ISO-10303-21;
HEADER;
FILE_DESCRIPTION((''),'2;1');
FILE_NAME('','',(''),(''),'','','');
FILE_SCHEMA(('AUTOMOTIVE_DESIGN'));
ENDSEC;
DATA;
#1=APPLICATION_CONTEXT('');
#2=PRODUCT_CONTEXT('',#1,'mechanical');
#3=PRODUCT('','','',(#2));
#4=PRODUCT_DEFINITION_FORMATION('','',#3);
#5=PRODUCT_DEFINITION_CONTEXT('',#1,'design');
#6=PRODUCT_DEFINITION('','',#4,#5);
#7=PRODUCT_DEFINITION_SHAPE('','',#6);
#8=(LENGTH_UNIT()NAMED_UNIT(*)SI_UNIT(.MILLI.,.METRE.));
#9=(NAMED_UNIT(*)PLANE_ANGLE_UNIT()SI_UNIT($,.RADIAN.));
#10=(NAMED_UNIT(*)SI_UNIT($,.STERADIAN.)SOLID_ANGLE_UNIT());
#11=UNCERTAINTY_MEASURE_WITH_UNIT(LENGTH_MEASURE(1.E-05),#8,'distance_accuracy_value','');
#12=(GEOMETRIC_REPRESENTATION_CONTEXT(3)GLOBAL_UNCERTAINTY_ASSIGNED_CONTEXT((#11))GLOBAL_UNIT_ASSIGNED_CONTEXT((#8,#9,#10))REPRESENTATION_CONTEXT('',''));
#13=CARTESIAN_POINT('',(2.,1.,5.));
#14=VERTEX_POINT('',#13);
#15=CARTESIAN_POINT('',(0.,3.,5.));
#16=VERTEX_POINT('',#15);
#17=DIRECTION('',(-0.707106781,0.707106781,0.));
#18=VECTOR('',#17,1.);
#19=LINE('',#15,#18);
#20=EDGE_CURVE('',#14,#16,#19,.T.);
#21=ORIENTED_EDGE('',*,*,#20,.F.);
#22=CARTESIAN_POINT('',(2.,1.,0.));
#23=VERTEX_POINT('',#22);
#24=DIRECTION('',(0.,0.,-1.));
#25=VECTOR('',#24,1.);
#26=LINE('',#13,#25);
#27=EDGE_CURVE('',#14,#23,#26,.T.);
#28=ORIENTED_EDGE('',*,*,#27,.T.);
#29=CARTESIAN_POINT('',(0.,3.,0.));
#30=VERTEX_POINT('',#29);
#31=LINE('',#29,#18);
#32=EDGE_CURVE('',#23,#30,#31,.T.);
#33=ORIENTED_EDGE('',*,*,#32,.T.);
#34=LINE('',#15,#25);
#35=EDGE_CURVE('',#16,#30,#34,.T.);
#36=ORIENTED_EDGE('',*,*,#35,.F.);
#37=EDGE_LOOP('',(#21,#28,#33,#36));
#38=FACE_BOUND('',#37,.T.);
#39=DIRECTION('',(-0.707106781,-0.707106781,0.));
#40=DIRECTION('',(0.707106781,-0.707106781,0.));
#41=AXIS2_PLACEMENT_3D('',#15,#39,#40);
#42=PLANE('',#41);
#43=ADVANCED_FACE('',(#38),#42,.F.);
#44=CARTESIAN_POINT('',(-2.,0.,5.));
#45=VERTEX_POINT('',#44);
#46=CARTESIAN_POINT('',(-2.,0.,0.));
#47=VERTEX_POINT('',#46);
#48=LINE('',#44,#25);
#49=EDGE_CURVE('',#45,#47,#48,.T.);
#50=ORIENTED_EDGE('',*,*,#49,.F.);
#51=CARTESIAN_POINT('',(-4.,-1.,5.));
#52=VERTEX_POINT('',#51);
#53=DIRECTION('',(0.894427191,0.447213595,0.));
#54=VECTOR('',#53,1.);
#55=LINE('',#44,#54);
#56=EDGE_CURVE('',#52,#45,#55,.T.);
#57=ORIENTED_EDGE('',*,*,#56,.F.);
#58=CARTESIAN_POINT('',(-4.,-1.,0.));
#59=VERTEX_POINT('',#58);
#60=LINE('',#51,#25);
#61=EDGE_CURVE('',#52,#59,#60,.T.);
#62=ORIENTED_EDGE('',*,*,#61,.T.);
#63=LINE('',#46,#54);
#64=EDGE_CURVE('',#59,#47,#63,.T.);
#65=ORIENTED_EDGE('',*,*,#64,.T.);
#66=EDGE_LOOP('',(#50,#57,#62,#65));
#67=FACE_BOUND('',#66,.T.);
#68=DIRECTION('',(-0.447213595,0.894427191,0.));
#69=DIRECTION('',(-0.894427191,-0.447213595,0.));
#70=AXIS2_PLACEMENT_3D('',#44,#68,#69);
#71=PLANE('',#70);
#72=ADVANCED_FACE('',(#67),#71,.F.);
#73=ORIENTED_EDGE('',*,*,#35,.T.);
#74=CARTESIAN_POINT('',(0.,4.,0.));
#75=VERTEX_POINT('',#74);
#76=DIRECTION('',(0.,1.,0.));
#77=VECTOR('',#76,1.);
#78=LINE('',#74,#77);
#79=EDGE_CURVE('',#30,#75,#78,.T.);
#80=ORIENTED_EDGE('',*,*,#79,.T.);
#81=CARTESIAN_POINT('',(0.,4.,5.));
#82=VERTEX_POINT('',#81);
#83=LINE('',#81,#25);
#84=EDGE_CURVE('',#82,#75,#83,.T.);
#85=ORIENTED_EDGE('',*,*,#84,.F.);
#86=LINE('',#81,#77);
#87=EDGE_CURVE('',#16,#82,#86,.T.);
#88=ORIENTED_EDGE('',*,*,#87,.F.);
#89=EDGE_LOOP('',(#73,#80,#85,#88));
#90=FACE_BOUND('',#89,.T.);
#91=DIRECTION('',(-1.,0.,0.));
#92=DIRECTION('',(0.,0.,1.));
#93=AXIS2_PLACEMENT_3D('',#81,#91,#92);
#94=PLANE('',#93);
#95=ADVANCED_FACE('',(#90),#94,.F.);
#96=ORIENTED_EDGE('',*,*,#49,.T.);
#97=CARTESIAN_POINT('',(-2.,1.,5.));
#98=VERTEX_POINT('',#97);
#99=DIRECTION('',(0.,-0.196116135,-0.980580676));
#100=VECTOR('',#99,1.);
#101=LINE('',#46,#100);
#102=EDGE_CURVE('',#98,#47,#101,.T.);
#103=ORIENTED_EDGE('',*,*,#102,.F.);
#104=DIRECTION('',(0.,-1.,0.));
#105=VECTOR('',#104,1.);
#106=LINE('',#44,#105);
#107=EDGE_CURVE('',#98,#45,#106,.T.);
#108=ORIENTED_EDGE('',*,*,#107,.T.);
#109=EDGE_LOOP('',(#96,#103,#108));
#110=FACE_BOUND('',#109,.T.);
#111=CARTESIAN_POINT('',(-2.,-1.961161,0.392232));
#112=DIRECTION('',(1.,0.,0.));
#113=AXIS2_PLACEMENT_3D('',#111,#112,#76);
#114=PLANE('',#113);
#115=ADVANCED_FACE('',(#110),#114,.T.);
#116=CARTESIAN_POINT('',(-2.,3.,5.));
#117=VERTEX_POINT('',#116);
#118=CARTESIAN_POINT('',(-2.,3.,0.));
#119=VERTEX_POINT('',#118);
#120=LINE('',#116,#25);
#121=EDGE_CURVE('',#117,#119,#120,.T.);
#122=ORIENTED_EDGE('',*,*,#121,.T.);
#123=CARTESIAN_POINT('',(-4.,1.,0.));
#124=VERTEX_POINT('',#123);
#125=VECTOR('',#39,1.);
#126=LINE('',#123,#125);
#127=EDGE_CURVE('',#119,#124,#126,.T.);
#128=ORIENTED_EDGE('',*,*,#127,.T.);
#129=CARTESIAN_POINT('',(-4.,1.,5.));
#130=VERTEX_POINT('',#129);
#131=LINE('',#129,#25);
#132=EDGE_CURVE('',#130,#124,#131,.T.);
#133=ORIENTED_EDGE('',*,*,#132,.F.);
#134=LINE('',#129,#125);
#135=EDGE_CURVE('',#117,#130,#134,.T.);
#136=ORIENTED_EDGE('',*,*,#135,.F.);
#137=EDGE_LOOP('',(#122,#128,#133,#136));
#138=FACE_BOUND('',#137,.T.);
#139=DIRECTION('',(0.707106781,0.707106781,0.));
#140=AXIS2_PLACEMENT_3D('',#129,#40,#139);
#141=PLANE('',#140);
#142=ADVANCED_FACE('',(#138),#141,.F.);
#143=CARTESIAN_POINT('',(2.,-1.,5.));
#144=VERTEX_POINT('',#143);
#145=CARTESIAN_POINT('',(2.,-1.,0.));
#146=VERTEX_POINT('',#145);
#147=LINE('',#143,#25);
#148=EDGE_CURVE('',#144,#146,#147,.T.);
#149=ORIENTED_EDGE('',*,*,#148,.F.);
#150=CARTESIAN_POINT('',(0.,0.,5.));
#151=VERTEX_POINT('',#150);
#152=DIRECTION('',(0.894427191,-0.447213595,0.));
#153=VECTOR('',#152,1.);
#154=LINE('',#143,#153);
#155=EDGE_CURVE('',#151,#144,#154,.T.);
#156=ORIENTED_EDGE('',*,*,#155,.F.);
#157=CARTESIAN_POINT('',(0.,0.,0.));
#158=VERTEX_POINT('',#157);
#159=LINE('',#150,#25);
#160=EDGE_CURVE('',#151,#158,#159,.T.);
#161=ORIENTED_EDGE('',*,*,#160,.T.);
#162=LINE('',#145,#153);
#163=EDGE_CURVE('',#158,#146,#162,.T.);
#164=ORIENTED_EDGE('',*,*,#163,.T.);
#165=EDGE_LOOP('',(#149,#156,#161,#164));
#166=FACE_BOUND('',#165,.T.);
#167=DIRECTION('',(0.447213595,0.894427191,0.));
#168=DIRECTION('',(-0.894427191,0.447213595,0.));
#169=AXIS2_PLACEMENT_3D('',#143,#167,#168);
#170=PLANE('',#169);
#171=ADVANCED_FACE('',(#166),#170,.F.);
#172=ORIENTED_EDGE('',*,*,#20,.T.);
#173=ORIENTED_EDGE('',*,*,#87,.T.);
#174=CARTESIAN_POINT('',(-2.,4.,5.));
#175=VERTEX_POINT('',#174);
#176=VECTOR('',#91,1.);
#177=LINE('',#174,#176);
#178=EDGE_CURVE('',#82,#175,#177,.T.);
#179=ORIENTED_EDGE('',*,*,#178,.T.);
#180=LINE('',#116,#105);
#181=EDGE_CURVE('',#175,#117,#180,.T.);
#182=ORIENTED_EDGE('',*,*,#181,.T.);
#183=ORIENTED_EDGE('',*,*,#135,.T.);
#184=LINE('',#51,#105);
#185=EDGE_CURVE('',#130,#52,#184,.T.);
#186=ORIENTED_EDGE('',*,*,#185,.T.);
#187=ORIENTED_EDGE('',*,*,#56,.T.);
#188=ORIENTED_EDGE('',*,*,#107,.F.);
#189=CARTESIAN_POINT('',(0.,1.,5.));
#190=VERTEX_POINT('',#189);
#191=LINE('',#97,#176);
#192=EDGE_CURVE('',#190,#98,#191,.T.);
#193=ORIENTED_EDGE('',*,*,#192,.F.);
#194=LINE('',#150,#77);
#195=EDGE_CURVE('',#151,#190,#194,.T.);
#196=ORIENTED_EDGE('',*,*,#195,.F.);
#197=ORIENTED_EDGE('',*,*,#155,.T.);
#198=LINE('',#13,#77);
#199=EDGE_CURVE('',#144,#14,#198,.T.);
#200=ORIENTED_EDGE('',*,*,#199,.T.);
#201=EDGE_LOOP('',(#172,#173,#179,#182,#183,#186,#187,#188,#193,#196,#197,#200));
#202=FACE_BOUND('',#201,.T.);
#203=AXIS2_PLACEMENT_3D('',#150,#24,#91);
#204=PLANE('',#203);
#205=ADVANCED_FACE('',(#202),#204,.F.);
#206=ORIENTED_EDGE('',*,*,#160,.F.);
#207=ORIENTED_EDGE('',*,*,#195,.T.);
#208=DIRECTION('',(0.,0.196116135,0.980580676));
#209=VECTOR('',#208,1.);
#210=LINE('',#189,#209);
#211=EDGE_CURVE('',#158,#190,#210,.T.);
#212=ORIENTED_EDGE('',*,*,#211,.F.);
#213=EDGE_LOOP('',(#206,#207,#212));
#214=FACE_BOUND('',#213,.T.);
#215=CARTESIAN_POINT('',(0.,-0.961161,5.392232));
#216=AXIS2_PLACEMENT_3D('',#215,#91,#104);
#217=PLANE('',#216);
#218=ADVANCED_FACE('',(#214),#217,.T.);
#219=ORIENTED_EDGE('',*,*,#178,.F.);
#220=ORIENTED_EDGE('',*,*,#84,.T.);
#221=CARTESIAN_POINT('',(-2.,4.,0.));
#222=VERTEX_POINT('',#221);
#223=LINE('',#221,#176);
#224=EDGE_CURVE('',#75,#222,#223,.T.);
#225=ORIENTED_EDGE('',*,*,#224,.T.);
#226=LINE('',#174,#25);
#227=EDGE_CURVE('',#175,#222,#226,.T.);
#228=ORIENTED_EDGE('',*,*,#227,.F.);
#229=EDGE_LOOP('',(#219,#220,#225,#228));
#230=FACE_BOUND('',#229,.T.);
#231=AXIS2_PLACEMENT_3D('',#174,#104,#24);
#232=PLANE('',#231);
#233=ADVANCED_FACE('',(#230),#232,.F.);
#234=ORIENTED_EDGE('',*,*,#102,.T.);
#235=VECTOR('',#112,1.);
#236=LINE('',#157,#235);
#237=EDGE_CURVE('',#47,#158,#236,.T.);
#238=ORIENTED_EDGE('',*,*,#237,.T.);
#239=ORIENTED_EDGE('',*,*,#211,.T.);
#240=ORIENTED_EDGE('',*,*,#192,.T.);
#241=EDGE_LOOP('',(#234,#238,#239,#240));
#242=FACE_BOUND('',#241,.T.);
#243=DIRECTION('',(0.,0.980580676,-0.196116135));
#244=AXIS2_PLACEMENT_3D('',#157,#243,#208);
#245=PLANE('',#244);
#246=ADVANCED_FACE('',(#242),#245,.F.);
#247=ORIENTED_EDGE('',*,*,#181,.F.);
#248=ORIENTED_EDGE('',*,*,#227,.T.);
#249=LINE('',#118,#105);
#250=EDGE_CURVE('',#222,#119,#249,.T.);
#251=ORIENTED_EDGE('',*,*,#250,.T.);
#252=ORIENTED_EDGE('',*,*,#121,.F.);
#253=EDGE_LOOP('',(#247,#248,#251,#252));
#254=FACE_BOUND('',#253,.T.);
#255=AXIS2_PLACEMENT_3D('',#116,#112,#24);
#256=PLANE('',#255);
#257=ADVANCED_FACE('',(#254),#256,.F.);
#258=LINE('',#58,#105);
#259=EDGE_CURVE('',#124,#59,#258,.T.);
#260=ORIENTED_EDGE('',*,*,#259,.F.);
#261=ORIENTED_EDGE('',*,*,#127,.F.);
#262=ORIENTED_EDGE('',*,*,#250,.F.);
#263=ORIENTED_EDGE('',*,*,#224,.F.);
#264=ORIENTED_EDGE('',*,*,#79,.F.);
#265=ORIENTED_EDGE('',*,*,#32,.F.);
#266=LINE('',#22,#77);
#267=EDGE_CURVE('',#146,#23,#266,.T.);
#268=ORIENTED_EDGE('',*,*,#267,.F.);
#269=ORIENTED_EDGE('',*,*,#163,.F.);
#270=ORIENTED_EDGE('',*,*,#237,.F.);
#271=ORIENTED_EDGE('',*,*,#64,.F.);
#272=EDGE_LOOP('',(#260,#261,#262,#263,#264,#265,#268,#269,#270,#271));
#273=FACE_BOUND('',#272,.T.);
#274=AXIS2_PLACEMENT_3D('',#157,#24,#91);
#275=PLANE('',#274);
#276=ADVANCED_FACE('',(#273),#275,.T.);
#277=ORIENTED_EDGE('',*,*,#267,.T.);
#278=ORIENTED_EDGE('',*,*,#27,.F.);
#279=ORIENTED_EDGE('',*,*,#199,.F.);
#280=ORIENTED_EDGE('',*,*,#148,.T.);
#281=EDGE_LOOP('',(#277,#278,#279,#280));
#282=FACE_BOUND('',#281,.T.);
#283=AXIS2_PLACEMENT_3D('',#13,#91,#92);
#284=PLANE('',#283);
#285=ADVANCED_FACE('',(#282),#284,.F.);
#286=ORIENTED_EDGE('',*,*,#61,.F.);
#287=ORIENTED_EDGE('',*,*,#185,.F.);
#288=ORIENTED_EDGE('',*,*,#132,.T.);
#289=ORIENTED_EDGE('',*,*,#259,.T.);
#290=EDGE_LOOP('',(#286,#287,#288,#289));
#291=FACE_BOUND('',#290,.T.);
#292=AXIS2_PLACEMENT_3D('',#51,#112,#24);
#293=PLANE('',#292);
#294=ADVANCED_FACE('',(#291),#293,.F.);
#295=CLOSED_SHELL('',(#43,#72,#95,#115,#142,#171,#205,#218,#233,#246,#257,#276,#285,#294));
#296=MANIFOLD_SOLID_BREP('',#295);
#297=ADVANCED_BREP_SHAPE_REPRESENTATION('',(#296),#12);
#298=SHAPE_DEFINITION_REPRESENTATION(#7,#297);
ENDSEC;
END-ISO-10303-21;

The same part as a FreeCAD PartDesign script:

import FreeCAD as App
import Part
import Sketcher


def add_polygon(sketch, points):
    """Adds a closed chain of lines whose ends are joined by coincident constraints."""
    first, n = sketch.GeometryCount, len(points)
    for a, b in zip(points, points[1:] + points[:1]):
        sketch.addGeometry(Part.LineSegment(App.Vector(*a, 0), App.Vector(*b, 0)), False)
    for i in range(n):
        sketch.addConstraint(Sketcher.Constraint("Coincident", first + i, 2, first + (i + 1) % n, 1))

doc = App.newDocument("Part")
body = doc.addObject("PartDesign::Body", "Body")

sketch1 = body.newObject("Sketcher::SketchObject", "Sketch")
sketch1.AttachmentSupport = (doc.getObject("XY_Plane"), [""])
sketch1.MapMode = "FlatFace"
add_polygon(sketch1, [(-2, 0), (0, 0), (2, -1), (2, 1), (0, 3), (0, 4), (-2, 4), (-2, 3), (-4, 1), (-4, -1)])
sketch1.addConstraint([
    Sketcher.Constraint("Horizontal", 0),
    Sketcher.Constraint("Vertical", 2),
    Sketcher.Constraint("Vertical", 4),
    Sketcher.Constraint("Horizontal", 5),
    Sketcher.Constraint("Vertical", 6),
    Sketcher.Constraint("Vertical", 8),
    Sketcher.Constraint("Coincident", 0, 2, -1, 1),
    Sketcher.Constraint("PointOnObject", 3, 2, -2),
    Sketcher.Constraint("Perpendicular", 3, 7),
    Sketcher.Constraint("Horizontal", 3, 2, 6, 2),
    Sketcher.Constraint("Horizontal", 2, 2, 7, 2),
    Sketcher.Constraint("Horizontal", 1, 2, 8, 2),
    Sketcher.Constraint("Vertical", 6, 2, 9, 2),
    Sketcher.Constraint("Equal", 5, 2),
    Sketcher.Constraint("Equal", 3, 7),
    Sketcher.Constraint("DistanceX", 0, 1, 0, 2, 2.0),
    Sketcher.Constraint("DistanceY", 4, 1, 4, 2, 1.0),
    Sketcher.Constraint("DistanceX", -1, 1, 1, 2, 2.0),
    Sketcher.Constraint("DistanceY", 1, 2, -1, 1, 1.0),
])
pad1 = body.newObject("PartDesign::Pad", "Pad")
pad1.Profile = sketch1
pad1.Length = 5

sketch2 = body.newObject("Sketcher::SketchObject", "Sketch001")
sketch2.Placement = App.Placement(App.Vector(0, 0, 0), App.Rotation(App.Vector(-1, 0, 0), App.Vector(0, -0.196116135, -0.980580676), App.Vector(0, -0.980580676, 0.196116135), "ZXY"))
add_polygon(sketch2, [(0, 0), (0, -5.1), (2, -5.1), (2, 0)])
sketch2.addConstraint([
    Sketcher.Constraint("Vertical", 0),
    Sketcher.Constraint("Horizontal", 1),
    Sketcher.Constraint("Vertical", 2),
    Sketcher.Constraint("Horizontal", 3),
    Sketcher.Constraint("Coincident", 3, 2, -1, 1),
    Sketcher.Constraint("DistanceX", 1, 1, 1, 2, 2.0),
    Sketcher.Constraint("DistanceY", 0, 2, 0, 1, 5.09902),
])
pocket1 = body.newObject("PartDesign::Pocket", "Pocket")
pocket1.Profile = sketch2
pocket1.Length = 2
pocket1.Reversed = True

doc.recompute()
